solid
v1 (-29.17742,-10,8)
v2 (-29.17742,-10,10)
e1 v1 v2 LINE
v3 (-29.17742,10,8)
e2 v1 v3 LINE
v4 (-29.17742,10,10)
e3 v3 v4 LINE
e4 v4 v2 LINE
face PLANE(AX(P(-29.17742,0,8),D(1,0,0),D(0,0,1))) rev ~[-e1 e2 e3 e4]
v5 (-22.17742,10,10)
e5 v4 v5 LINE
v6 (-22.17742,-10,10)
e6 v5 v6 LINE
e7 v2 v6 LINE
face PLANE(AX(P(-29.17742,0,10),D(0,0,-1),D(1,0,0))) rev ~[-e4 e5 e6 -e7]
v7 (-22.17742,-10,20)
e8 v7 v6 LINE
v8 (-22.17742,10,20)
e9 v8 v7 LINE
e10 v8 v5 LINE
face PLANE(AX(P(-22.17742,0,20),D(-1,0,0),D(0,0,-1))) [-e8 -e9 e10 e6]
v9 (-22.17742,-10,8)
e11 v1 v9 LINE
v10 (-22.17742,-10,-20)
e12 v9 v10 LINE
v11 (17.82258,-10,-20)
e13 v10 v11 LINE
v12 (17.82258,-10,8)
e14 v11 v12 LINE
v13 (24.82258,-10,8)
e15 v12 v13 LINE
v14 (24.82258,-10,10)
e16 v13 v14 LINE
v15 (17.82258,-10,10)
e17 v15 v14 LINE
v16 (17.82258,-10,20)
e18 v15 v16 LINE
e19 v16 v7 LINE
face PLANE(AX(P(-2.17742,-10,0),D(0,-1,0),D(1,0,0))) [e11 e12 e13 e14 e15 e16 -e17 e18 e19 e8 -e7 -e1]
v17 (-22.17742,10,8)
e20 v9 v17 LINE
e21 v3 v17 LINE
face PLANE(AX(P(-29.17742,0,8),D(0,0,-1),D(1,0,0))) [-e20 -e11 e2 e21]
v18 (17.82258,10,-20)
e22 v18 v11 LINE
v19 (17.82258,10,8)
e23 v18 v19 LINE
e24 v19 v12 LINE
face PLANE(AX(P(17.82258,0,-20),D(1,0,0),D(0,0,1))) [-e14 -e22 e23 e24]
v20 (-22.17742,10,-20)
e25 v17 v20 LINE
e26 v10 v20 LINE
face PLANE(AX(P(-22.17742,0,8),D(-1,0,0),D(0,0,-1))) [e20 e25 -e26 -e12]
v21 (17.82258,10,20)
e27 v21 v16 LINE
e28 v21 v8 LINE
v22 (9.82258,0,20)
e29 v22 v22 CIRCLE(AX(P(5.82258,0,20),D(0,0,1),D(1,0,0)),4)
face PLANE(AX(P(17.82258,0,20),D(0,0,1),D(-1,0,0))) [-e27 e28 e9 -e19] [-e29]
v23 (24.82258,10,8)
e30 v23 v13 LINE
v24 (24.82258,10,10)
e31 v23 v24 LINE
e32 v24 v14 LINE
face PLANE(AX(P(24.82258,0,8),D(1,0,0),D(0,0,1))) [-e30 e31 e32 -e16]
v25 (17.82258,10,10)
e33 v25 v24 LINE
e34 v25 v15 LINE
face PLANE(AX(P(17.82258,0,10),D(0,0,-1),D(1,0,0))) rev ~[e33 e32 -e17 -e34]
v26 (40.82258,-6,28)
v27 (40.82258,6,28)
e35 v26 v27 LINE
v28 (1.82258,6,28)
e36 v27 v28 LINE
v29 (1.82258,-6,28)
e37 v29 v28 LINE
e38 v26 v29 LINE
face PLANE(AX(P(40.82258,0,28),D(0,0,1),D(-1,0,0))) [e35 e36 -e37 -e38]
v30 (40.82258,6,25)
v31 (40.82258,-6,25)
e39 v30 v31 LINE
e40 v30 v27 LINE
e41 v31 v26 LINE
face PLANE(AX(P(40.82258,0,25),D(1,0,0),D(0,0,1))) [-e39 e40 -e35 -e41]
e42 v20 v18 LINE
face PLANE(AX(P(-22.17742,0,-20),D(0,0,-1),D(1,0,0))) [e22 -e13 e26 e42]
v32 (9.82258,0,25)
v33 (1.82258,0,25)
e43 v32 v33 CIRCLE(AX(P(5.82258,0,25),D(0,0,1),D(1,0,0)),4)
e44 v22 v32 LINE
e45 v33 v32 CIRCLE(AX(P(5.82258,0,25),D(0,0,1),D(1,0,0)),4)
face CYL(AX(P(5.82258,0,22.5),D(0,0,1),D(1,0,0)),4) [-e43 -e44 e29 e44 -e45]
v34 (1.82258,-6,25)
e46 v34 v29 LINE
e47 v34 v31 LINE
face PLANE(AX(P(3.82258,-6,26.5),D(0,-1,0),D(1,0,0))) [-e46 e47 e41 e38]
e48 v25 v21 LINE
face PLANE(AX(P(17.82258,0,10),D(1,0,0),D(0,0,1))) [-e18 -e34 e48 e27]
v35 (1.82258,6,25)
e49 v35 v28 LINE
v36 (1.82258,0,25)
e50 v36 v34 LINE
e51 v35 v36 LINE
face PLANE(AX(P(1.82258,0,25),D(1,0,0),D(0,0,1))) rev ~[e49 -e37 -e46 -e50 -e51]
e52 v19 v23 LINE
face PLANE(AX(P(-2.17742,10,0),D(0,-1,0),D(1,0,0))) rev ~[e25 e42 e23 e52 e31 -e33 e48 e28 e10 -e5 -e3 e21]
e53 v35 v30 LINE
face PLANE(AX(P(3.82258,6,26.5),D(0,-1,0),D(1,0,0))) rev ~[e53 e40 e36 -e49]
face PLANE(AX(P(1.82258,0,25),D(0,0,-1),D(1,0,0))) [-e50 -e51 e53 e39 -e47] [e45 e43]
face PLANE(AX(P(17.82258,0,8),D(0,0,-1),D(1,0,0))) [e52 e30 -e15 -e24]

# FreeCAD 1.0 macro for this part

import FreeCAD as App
import Part
import Sketcher
Q = App.Units.Quantity

doc = App.newDocument("Part")
params = doc.addObject("Spreadsheet::Sheet", "Params")
for row, (alias, value) in enumerate([
    ("sketch1_width", "40 mm"),
    ("sketch1_width2", "7 mm"),
    ("sketch1_height", "28 mm"),
    ("sketch1_height2", "2 mm"),
    ("sketch1_height3", "10 mm"),
    ("pad1_length", "20 mm"),
    ("sketch2_width", "4 mm"),
    ("sketch2_height", "5 mm"),
    ("revolution_angle", "360 deg"),
    ("sketch3_width", "39 mm"),
    ("sketch3_height", "3 mm"),
    ("pad2_length", "12 mm"),
], start=1):
    params.set(f"A{row}", alias)
    params.set(f"B{row}", "=" + value)
    params.setAlias(f"B{row}", alias)

body = doc.addObject("PartDesign::Body", "Body")

sketch1 = doc.addObject("Sketcher::SketchObject", "Sketch")
body.addObject(sketch1)
sketch1.AttachmentSupport = (doc.XZ_Plane, [""])
sketch1.MapMode = "FlatFace"
sketch1.addGeometry([
    Part.LineSegment(App.Vector(-22.17742, -20, 0), App.Vector(17.82258, -20, 0)),
    Part.LineSegment(App.Vector(17.82258, -20, 0), App.Vector(17.82258, 8, 0)),
    Part.LineSegment(App.Vector(17.82258, 8, 0), App.Vector(24.82258, 8, 0)),
    Part.LineSegment(App.Vector(24.82258, 8, 0), App.Vector(24.82258, 10, 0)),
    Part.LineSegment(App.Vector(24.82258, 10, 0), App.Vector(17.82258, 10, 0)),
    Part.LineSegment(App.Vector(17.82258, 10, 0), App.Vector(17.82258, 20, 0)),
    Part.LineSegment(App.Vector(17.82258, 20, 0), App.Vector(-22.17742, 20, 0)),
    Part.LineSegment(App.Vector(-22.17742, 20, 0), App.Vector(-22.17742, 10, 0)),
    Part.LineSegment(App.Vector(-22.17742, 10, 0), App.Vector(-29.17742, 10, 0)),
    Part.LineSegment(App.Vector(-29.17742, 10, 0), App.Vector(-29.17742, 8, 0)),
    Part.LineSegment(App.Vector(-29.17742, 8, 0), App.Vector(-22.17742, 8, 0)),
    Part.LineSegment(App.Vector(-22.17742, 8, 0), App.Vector(-22.17742, -20, 0)),
], False)
sketch1.addConstraint([
    Sketcher.Constraint("Coincident", 0, 2, 1, 1),
    Sketcher.Constraint("Coincident", 1, 2, 2, 1),
    Sketcher.Constraint("Coincident", 2, 2, 3, 1),
    Sketcher.Constraint("Coincident", 3, 2, 4, 1),
    Sketcher.Constraint("Coincident", 4, 2, 5, 1),
    Sketcher.Constraint("Coincident", 5, 2, 6, 1),
    Sketcher.Constraint("Coincident", 6, 2, 7, 1),
    Sketcher.Constraint("Coincident", 7, 2, 8, 1),
    Sketcher.Constraint("Coincident", 8, 2, 9, 1),
    Sketcher.Constraint("Coincident", 9, 2, 10, 1),
    Sketcher.Constraint("Coincident", 10, 2, 11, 1),
    Sketcher.Constraint("Coincident", 11, 2, 0, 1),
    Sketcher.Constraint("Horizontal", 0),
    Sketcher.Constraint("Vertical", 1),
    Sketcher.Constraint("Horizontal", 2),
    Sketcher.Constraint("Vertical", 3),
    Sketcher.Constraint("Horizontal", 4),
    Sketcher.Constraint("Vertical", 5),
    Sketcher.Constraint("Horizontal", 6),
    Sketcher.Constraint("Vertical", 7),
    Sketcher.Constraint("Horizontal", 8),
    Sketcher.Constraint("Vertical", 9),
    Sketcher.Constraint("Horizontal", 10),
    Sketcher.Constraint("Vertical", 11),
    Sketcher.Constraint("Symmetric", 0, 2, 5, 2, -1),
    Sketcher.Constraint("Horizontal", 4, 2, 7, 2),
    Sketcher.Constraint("Horizontal", 2, 2, 9, 2),
    Sketcher.Constraint("Vertical", 7, 2, 10, 2),
    Sketcher.Constraint("Equal", 4, 8),
    Sketcher.Constraint("DistanceX", 0, 1, 0, 2, Q("40 mm")),
    Sketcher.Constraint("DistanceX", 2, 1, 2, 2, Q("7 mm")),
    Sketcher.Constraint("DistanceY", 1, 1, 1, 2, Q("28 mm")),
    Sketcher.Constraint("DistanceY", 3, 1, 3, 2, Q("2 mm")),
    Sketcher.Constraint("DistanceY", 5, 1, 5, 2, Q("10 mm")),
    Sketcher.Constraint("DistanceX", -1, 1, 0, 2, Q("17.82258 mm")),
])
sketch1.setExpression("Constraints[29]", "Params.sketch1_width")
sketch1.setExpression("Constraints[30]", "Params.sketch1_width2")
sketch1.setExpression("Constraints[31]", "Params.sketch1_height")
sketch1.setExpression("Constraints[32]", "Params.sketch1_height2")
sketch1.setExpression("Constraints[33]", "Params.sketch1_height3")
pad1 = doc.addObject("PartDesign::Pad", "Pad")
body.addObject(pad1)
pad1.Profile = sketch1
pad1.setExpression("Length", "Params.pad1_length")
pad1.Midplane = True

sketch2 = doc.addObject("Sketcher::SketchObject", "Sketch001")
body.addObject(sketch2)
sketch2.AttachmentSupport = (doc.XZ_Plane, [""])
sketch2.MapMode = "FlatFace"
sketch2.addGeometry([
    Part.LineSegment(App.Vector(5.82258, 25, 0), App.Vector(5.82258, 20, 0)),
    Part.LineSegment(App.Vector(5.82258, 20, 0), App.Vector(9.82258, 20, 0)),
    Part.LineSegment(App.Vector(9.82258, 20, 0), App.Vector(9.82258, 25, 0)),
    Part.LineSegment(App.Vector(9.82258, 25, 0), App.Vector(5.82258, 25, 0)),
], False)
sketch2.addGeometry(Part.LineSegment(App.Vector(5.82258, 20, 0), App.Vector(5.82258, 25, 0)), True)
sketch2.addConstraint([
    Sketcher.Constraint("Coincident", 0, 2, 1, 1),
    Sketcher.Constraint("Coincident", 1, 2, 2, 1),
    Sketcher.Constraint("Coincident", 2, 2, 3, 1),
    Sketcher.Constraint("Coincident", 3, 2, 0, 1),
    Sketcher.Constraint("Vertical", 0),
    Sketcher.Constraint("Horizontal", 1),
    Sketcher.Constraint("Vertical", 2),
    Sketcher.Constraint("Horizontal", 3),
    Sketcher.Constraint("Vertical", 4),
    Sketcher.Constraint("Coincident", 4, 1, 0, 2),
    Sketcher.Constraint("Horizontal", 2, 2, 4, 2),
    Sketcher.Constraint("DistanceX", 1, 1, 1, 2, Q("4 mm")),
    Sketcher.Constraint("DistanceY", 0, 2, 0, 1, Q("5 mm")),
    Sketcher.Constraint("DistanceY", -1, 1, 0, 2, Q("20 mm")),
    Sketcher.Constraint("DistanceX", -1, 1, 0, 2, Q("5.82258 mm")),
])
sketch2.setExpression("Constraints[11]", "Params.sketch2_width")
sketch2.setExpression("Constraints[12]", "Params.sketch2_height")
revolution = doc.addObject("PartDesign::Revolution", "Revolution")
body.addObject(revolution)
revolution.Profile = sketch2
revolution.ReferenceAxis = (sketch2, ["Axis0"])
revolution.setExpression("Angle", "Params.revolution_angle")

sketch3 = doc.addObject("Sketcher::SketchObject", "Sketch002")
body.addObject(sketch3)
sketch3.AttachmentSupport = (doc.XZ_Plane, [""])
sketch3.MapMode = "FlatFace"
sketch3.addGeometry([
    Part.LineSegment(App.Vector(1.82258, 28, 0), App.Vector(1.82258, 25, 0)),
    Part.LineSegment(App.Vector(1.82258, 25, 0), App.Vector(40.82258, 25, 0)),
    Part.LineSegment(App.Vector(40.82258, 25, 0), App.Vector(40.82258, 28, 0)),
    Part.LineSegment(App.Vector(40.82258, 28, 0), App.Vector(1.82258, 28, 0)),
], False)
sketch3.addConstraint([
    Sketcher.Constraint("Coincident", 0, 2, 1, 1),
    Sketcher.Constraint("Coincident", 1, 2, 2, 1),
    Sketcher.Constraint("Coincident", 2, 2, 3, 1),
    Sketcher.Constraint("Coincident", 3, 2, 0, 1),
    Sketcher.Constraint("Vertical", 0),
    Sketcher.Constraint("Horizontal", 1),
    Sketcher.Constraint("Vertical", 2),
    Sketcher.Constraint("Horizontal", 3),
    Sketcher.Constraint("DistanceX", 1, 1, 1, 2, Q("39 mm")),
    Sketcher.Constraint("DistanceY", 0, 2, 0, 1, Q("3 mm")),
    Sketcher.Constraint("DistanceY", -1, 1, 0, 2, Q("25 mm")),
    Sketcher.Constraint("DistanceX", -1, 1, 0, 2, Q("1.82258 mm")),
])
sketch3.setExpression("Constraints[8]", "Params.sketch3_width")
sketch3.setExpression("Constraints[9]", "Params.sketch3_height")
pad2 = doc.addObject("PartDesign::Pad", "Pad001")
body.addObject(pad2)
pad2.Profile = sketch3
pad2.setExpression("Length", "Params.pad2_length")
pad2.Midplane = True

doc.recompute()
